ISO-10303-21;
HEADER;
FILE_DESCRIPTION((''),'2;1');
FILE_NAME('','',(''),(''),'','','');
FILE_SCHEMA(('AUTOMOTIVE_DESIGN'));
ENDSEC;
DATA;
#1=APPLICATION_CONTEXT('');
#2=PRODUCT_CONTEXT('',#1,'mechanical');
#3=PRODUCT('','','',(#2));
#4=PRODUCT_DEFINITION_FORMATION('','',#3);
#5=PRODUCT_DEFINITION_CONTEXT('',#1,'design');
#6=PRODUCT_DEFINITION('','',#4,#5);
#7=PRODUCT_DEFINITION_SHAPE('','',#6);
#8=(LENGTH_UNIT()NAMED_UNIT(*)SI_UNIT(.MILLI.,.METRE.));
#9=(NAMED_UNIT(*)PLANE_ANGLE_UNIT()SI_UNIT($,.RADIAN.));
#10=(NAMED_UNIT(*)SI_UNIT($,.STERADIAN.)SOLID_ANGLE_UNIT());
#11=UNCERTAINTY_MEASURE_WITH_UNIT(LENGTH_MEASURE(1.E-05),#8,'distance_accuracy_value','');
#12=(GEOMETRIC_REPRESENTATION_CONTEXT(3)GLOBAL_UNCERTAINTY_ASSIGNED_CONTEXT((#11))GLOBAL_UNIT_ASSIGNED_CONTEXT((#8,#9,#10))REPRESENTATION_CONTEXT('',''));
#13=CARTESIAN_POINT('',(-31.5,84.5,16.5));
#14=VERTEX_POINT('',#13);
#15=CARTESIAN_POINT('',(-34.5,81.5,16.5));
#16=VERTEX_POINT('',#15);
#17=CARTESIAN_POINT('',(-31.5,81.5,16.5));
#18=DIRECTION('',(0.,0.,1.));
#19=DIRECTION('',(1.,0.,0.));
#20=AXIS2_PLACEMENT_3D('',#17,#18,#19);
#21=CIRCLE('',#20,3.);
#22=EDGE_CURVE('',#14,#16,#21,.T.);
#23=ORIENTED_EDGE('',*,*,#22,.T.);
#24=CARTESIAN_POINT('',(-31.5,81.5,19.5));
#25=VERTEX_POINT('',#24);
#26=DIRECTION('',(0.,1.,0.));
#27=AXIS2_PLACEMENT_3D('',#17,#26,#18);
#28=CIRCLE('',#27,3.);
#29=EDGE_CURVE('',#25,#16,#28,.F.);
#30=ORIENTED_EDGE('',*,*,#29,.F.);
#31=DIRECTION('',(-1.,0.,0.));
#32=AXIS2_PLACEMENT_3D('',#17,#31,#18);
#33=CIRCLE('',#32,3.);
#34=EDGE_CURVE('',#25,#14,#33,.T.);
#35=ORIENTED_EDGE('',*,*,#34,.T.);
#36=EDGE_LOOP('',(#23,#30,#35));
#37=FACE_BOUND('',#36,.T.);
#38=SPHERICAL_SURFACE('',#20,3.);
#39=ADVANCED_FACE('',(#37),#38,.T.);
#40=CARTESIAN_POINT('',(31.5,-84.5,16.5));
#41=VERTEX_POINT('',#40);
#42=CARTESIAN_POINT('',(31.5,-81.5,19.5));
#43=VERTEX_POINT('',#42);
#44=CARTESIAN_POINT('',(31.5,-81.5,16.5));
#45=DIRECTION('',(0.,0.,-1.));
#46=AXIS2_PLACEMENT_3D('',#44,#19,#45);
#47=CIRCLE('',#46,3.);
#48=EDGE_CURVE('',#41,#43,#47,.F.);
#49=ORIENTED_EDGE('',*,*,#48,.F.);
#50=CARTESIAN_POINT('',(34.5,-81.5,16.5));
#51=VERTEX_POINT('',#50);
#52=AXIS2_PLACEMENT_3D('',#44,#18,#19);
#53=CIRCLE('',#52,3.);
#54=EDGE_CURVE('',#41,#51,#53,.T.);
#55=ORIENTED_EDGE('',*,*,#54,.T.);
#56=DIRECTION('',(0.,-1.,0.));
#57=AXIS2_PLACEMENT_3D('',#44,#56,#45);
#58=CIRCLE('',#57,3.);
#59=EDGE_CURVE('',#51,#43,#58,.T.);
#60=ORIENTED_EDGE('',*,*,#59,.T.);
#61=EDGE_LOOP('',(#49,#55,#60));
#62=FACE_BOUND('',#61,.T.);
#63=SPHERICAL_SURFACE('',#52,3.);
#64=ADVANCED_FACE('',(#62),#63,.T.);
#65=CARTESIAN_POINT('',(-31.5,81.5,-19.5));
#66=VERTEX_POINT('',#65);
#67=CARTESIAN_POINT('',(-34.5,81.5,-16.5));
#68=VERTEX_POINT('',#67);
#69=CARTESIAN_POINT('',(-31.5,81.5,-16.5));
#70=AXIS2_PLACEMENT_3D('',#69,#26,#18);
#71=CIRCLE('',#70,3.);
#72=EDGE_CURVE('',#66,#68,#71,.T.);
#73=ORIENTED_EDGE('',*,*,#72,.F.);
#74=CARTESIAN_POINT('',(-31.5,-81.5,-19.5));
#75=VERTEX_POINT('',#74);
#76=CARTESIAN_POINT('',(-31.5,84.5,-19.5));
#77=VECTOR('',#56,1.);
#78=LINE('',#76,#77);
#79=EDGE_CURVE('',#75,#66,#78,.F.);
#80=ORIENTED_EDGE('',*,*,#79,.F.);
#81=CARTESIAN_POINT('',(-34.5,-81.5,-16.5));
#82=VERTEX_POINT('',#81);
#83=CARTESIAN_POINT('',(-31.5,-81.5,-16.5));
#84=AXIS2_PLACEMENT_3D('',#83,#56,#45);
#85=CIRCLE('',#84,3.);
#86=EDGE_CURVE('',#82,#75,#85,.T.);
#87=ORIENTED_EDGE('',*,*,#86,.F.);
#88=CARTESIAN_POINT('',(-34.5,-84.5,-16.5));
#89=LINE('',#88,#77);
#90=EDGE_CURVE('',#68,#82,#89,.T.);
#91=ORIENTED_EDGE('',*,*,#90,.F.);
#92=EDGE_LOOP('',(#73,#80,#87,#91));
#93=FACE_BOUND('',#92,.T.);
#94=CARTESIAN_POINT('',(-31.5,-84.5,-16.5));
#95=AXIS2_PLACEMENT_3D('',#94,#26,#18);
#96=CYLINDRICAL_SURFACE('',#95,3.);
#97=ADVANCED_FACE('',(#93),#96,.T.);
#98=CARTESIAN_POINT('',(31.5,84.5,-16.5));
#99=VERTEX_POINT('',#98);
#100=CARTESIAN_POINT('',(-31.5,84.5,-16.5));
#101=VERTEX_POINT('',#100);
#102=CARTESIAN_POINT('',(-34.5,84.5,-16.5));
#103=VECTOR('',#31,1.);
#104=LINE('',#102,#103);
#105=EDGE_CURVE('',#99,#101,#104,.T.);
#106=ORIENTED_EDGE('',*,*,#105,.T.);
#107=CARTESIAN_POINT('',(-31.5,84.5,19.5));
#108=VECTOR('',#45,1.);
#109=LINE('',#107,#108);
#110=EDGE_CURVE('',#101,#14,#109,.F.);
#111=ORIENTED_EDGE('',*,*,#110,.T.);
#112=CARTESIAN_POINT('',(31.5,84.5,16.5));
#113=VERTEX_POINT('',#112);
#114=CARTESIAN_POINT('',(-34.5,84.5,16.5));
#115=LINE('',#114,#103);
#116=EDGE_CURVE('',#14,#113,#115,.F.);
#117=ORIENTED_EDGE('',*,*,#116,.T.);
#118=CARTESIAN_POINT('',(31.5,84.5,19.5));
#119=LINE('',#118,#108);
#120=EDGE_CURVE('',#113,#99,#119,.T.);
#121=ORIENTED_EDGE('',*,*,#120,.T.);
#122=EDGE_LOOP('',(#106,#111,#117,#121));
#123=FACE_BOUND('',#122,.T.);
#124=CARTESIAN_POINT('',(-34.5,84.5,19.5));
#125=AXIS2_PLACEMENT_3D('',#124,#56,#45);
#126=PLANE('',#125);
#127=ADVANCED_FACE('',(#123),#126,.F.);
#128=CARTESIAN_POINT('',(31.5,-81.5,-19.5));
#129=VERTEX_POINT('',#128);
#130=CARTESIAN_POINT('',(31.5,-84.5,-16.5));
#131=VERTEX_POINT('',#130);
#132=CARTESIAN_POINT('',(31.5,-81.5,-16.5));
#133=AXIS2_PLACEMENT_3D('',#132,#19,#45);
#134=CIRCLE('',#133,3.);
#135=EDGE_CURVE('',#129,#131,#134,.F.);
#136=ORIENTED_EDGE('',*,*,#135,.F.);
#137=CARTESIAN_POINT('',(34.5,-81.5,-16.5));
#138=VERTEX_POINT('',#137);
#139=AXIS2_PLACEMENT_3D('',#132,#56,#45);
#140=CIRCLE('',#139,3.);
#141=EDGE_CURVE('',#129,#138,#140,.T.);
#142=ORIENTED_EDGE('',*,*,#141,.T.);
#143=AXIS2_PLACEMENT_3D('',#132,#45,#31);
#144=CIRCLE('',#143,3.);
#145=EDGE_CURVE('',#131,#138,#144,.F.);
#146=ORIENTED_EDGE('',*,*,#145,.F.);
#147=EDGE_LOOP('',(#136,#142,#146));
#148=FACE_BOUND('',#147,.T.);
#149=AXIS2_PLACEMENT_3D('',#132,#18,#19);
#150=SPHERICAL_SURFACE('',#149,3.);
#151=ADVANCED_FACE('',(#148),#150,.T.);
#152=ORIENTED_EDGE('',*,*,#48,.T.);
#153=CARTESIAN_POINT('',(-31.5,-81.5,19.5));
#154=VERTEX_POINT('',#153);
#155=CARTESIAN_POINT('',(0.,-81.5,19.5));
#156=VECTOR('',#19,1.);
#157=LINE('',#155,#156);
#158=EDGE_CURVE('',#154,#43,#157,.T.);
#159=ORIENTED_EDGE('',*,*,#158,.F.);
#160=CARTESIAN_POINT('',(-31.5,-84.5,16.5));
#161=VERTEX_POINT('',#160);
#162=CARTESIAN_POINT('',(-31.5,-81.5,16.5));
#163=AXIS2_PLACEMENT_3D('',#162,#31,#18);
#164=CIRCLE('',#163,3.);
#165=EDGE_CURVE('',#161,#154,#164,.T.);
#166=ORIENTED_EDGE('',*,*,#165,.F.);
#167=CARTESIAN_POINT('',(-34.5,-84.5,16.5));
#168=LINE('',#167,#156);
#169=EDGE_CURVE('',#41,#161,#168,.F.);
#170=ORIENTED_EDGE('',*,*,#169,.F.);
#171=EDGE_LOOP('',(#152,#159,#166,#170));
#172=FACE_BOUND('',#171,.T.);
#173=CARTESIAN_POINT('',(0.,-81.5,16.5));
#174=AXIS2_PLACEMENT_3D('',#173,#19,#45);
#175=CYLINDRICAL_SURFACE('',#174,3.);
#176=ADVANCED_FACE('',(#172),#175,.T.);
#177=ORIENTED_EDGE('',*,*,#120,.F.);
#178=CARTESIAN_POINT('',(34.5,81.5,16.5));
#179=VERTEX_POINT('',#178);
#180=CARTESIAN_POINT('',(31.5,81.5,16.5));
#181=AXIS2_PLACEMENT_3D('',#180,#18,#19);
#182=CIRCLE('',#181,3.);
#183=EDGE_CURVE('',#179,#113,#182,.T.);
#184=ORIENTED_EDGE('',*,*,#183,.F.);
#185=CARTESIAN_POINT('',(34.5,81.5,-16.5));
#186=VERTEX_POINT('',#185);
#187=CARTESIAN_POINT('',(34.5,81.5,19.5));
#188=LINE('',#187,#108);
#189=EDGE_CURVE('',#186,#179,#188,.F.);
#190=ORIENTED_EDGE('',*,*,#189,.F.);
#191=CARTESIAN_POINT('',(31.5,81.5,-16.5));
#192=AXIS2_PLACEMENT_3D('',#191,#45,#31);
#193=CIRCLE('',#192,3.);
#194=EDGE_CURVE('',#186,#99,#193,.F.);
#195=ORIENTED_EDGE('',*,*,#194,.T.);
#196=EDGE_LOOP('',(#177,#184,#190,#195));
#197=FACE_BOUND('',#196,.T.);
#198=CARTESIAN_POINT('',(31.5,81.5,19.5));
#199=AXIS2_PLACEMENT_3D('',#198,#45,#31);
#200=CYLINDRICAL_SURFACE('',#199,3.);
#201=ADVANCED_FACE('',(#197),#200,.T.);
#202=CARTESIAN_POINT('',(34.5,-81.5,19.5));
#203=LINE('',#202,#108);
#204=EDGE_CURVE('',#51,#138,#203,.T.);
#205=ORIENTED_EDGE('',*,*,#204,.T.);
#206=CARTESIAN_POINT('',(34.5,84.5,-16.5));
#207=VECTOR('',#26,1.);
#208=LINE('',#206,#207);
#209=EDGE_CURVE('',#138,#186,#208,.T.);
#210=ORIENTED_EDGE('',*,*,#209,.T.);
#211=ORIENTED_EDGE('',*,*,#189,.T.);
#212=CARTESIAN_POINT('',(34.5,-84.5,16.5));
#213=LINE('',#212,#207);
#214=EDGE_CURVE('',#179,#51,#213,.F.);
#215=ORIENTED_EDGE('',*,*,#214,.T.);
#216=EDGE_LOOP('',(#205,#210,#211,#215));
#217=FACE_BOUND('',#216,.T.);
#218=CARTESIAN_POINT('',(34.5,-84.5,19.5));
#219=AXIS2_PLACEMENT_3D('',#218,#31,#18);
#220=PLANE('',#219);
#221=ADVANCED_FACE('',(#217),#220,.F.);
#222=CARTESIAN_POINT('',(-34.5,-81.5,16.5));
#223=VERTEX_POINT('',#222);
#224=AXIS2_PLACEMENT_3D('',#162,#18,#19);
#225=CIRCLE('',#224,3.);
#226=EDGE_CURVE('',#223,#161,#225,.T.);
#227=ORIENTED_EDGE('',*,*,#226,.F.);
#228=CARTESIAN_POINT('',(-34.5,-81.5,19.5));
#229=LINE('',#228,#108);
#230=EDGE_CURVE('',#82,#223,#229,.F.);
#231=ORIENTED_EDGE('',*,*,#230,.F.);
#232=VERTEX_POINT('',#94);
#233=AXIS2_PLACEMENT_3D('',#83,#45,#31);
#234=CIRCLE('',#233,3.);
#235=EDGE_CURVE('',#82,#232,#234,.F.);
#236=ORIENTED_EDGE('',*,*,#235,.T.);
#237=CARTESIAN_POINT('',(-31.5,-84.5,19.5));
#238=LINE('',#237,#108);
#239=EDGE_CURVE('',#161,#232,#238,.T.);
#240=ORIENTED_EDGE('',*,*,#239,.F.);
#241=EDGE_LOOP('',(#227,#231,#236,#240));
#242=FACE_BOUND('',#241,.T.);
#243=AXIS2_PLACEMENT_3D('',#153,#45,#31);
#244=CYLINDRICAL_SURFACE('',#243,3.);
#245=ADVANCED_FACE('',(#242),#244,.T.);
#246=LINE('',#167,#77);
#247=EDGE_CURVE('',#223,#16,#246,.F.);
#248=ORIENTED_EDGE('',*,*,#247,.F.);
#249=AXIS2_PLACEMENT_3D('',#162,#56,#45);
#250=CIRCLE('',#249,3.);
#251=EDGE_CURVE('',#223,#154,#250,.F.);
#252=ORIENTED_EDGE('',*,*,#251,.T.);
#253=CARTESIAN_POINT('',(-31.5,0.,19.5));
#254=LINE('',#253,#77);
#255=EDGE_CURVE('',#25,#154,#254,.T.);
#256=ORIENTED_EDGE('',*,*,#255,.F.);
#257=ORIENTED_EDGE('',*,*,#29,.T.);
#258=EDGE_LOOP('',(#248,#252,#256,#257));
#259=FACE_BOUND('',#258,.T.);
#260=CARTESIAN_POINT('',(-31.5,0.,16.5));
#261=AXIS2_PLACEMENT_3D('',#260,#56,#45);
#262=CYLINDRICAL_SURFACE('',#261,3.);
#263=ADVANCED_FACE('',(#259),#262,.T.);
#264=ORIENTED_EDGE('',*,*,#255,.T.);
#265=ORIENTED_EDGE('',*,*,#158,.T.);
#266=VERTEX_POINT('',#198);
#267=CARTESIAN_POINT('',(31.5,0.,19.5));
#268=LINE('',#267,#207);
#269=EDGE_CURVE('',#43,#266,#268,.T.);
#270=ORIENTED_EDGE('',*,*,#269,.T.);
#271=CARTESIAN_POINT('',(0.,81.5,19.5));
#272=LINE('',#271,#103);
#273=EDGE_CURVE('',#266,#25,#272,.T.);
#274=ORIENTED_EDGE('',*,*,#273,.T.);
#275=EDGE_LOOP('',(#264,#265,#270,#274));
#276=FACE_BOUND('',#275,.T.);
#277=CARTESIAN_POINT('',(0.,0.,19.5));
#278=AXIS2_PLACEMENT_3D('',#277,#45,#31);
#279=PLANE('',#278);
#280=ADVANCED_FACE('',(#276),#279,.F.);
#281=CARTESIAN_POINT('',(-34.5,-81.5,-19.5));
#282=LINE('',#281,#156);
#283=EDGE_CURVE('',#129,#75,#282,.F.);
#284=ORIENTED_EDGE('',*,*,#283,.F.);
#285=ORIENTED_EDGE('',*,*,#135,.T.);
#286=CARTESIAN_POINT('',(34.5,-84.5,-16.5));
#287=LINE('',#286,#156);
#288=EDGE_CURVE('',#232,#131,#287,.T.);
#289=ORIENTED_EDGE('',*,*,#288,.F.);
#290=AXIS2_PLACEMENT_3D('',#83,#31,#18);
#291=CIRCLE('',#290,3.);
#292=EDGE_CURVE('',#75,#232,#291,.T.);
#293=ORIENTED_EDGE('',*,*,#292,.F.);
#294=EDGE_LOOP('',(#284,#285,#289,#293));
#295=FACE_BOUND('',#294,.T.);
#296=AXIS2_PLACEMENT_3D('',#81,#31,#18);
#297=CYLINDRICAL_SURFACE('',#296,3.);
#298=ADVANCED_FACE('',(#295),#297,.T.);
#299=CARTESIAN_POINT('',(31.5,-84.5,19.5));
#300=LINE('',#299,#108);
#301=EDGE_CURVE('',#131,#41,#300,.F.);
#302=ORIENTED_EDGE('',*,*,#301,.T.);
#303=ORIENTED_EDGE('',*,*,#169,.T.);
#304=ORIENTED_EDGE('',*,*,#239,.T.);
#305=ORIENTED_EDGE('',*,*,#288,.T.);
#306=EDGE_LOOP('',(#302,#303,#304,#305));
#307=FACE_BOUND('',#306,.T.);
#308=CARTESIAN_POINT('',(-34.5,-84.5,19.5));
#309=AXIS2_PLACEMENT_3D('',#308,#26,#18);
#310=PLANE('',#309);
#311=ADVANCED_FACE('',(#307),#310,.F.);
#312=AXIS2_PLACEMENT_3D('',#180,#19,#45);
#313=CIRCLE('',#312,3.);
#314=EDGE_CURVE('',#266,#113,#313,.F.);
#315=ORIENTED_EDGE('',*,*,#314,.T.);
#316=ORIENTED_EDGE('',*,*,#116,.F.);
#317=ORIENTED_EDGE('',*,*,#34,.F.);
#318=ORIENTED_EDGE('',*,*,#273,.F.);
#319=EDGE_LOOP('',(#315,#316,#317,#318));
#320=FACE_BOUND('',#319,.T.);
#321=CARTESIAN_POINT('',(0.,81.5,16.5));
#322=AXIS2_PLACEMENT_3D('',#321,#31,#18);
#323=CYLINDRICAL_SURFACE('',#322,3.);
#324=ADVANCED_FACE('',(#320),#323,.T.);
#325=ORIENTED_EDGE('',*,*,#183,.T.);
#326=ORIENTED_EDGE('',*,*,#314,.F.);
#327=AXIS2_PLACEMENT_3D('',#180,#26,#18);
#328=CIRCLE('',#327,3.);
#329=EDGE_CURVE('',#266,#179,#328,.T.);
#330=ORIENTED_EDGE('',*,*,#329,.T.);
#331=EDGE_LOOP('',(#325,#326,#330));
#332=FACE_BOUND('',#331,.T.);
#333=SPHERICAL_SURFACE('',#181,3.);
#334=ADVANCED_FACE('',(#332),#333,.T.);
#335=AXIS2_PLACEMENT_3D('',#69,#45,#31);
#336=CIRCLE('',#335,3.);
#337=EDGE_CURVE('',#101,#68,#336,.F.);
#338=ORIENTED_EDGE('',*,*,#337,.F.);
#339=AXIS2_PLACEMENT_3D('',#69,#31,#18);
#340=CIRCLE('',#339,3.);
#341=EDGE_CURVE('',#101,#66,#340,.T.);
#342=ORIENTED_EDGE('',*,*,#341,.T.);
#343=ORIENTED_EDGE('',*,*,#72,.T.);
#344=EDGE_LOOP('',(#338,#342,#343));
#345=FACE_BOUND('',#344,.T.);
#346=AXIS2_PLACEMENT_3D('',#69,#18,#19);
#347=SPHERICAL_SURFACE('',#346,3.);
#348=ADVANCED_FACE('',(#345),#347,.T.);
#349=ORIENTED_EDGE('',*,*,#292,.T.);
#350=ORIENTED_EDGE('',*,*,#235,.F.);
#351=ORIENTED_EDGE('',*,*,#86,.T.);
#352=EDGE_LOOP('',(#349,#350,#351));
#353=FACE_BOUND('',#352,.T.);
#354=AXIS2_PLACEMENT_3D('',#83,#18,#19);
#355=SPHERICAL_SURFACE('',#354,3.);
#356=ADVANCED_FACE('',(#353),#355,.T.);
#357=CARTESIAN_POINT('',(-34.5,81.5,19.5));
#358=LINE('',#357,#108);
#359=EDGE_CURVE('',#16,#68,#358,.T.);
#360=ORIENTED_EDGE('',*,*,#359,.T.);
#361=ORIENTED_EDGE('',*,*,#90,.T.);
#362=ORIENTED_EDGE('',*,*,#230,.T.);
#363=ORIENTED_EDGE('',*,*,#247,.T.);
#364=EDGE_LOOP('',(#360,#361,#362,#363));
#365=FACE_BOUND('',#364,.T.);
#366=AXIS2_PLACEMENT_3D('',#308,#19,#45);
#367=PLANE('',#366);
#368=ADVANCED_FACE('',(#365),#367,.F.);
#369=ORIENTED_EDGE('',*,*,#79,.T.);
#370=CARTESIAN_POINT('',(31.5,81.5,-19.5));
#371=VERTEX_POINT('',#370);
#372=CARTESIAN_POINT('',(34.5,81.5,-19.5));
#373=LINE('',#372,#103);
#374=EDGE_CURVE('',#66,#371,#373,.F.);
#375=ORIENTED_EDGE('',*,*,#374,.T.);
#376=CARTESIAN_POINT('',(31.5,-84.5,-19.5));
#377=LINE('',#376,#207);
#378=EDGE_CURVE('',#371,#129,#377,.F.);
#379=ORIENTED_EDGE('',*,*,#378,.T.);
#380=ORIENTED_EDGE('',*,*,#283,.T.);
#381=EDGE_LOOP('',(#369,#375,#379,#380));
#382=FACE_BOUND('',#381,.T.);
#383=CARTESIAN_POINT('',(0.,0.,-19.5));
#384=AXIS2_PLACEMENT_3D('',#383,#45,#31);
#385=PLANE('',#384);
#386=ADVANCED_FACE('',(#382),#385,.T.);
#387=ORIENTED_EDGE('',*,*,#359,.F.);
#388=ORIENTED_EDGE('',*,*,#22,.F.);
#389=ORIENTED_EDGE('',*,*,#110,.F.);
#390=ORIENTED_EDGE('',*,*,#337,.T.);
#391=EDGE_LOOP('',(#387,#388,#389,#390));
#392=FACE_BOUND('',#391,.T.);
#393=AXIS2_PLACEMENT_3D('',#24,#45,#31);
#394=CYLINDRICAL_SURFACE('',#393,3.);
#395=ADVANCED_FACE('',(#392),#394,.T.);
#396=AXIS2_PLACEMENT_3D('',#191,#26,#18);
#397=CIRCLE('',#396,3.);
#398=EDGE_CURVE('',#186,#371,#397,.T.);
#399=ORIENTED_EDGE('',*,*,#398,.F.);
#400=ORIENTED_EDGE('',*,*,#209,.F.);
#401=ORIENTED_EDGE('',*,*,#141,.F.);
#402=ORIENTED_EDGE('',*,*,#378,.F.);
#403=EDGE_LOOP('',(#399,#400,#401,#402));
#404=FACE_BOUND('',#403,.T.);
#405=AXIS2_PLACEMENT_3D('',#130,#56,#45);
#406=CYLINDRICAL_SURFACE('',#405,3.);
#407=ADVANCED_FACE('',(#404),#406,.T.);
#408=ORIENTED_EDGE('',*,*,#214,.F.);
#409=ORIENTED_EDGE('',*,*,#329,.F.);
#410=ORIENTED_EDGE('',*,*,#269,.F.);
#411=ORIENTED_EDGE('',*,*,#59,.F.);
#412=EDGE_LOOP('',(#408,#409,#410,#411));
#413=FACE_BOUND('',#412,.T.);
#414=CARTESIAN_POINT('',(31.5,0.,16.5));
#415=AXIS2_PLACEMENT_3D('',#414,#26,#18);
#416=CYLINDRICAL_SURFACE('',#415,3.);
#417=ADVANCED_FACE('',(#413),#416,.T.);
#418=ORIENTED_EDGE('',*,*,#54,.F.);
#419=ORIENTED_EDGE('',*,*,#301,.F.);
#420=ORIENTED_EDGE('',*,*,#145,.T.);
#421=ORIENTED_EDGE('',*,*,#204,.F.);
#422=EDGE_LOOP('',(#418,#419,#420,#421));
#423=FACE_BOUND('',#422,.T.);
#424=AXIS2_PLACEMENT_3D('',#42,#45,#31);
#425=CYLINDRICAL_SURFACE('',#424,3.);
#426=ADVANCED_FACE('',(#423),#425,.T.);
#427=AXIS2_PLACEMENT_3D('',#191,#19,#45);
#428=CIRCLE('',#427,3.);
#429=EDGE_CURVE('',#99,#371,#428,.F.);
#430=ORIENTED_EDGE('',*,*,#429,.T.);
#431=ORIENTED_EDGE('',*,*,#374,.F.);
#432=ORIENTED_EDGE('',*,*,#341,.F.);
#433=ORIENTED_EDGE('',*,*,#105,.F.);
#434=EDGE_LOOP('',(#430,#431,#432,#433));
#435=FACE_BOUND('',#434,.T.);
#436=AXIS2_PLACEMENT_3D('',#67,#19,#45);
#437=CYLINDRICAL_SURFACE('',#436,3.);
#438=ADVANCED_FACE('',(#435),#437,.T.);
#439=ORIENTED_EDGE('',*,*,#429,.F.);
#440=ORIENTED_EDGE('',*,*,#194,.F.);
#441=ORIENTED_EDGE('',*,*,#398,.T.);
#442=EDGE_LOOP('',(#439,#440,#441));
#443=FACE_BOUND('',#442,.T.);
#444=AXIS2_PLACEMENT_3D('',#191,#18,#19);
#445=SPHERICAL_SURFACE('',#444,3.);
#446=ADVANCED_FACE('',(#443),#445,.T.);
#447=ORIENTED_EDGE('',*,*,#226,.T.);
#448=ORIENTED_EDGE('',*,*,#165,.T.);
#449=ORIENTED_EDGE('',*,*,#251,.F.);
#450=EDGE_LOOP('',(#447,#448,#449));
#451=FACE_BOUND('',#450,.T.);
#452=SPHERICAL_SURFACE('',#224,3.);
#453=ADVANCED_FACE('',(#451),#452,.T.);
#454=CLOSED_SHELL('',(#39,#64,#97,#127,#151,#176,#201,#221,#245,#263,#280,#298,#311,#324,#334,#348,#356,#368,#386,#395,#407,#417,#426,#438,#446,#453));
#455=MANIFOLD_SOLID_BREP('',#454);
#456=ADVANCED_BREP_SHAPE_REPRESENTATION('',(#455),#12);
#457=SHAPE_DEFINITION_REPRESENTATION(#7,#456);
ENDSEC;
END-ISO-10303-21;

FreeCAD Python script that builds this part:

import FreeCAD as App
import Part
import Sketcher
Q = App.Units.Quantity


def add_polygon(sketch, points):
    """Adds a closed chain of lines whose ends are joined by coincident constraints."""
    first, n = sketch.GeometryCount, len(points)
    for a, b in zip(points, points[1:] + points[:1]):
        sketch.addGeometry(Part.LineSegment(App.Vector(*a, 0), App.Vector(*b, 0)), False)
    for i in range(n):
        sketch.addConstraint(Sketcher.Constraint("Coincident", first + i, 2, first + (i + 1) % n, 1))

doc = App.newDocument("Part")
body = doc.addObject("PartDesign::Body", "Body")

sketch1 = body.newObject("Sketcher::SketchObject", "Sketch")
sketch1.AttachmentSupport = (doc.getObject("XY_Plane"), [""])
sketch1.MapMode = "FlatFace"
add_polygon(sketch1, [(-34, 84), (-34, -84), (34, -84), (34, 84)])
sketch1.addConstraint(Sketcher.Constraint("Vertical", 0))
sketch1.addConstraint(Sketcher.Constraint("Horizontal", 1))
sketch1.addConstraint(Sketcher.Constraint("Vertical", 2))
sketch1.addConstraint(Sketcher.Constraint("Horizontal", 3))
sketch1.addConstraint(Sketcher.Constraint("Symmetric", 0, 2, 2, 2, -1, 1))
sketch1.addConstraint(Sketcher.Constraint("DistanceX", 1, 1, 1, 2, Q("69 mm")))
sketch1.addConstraint(Sketcher.Constraint("DistanceY", 0, 2, 0, 1, Q("169 mm")))
pad1 = body.newObject("PartDesign::Pad", "Pad")
pad1.Profile = sketch1
pad1.Length = 39
pad1.Midplane = True
doc.recompute()

fillet = body.newObject("PartDesign::Fillet", "Fillet")
fillet.Base = (pad1, ["Edge1"])
fillet.UseAllEdges = True
fillet.Radius = 3

doc.recompute()
